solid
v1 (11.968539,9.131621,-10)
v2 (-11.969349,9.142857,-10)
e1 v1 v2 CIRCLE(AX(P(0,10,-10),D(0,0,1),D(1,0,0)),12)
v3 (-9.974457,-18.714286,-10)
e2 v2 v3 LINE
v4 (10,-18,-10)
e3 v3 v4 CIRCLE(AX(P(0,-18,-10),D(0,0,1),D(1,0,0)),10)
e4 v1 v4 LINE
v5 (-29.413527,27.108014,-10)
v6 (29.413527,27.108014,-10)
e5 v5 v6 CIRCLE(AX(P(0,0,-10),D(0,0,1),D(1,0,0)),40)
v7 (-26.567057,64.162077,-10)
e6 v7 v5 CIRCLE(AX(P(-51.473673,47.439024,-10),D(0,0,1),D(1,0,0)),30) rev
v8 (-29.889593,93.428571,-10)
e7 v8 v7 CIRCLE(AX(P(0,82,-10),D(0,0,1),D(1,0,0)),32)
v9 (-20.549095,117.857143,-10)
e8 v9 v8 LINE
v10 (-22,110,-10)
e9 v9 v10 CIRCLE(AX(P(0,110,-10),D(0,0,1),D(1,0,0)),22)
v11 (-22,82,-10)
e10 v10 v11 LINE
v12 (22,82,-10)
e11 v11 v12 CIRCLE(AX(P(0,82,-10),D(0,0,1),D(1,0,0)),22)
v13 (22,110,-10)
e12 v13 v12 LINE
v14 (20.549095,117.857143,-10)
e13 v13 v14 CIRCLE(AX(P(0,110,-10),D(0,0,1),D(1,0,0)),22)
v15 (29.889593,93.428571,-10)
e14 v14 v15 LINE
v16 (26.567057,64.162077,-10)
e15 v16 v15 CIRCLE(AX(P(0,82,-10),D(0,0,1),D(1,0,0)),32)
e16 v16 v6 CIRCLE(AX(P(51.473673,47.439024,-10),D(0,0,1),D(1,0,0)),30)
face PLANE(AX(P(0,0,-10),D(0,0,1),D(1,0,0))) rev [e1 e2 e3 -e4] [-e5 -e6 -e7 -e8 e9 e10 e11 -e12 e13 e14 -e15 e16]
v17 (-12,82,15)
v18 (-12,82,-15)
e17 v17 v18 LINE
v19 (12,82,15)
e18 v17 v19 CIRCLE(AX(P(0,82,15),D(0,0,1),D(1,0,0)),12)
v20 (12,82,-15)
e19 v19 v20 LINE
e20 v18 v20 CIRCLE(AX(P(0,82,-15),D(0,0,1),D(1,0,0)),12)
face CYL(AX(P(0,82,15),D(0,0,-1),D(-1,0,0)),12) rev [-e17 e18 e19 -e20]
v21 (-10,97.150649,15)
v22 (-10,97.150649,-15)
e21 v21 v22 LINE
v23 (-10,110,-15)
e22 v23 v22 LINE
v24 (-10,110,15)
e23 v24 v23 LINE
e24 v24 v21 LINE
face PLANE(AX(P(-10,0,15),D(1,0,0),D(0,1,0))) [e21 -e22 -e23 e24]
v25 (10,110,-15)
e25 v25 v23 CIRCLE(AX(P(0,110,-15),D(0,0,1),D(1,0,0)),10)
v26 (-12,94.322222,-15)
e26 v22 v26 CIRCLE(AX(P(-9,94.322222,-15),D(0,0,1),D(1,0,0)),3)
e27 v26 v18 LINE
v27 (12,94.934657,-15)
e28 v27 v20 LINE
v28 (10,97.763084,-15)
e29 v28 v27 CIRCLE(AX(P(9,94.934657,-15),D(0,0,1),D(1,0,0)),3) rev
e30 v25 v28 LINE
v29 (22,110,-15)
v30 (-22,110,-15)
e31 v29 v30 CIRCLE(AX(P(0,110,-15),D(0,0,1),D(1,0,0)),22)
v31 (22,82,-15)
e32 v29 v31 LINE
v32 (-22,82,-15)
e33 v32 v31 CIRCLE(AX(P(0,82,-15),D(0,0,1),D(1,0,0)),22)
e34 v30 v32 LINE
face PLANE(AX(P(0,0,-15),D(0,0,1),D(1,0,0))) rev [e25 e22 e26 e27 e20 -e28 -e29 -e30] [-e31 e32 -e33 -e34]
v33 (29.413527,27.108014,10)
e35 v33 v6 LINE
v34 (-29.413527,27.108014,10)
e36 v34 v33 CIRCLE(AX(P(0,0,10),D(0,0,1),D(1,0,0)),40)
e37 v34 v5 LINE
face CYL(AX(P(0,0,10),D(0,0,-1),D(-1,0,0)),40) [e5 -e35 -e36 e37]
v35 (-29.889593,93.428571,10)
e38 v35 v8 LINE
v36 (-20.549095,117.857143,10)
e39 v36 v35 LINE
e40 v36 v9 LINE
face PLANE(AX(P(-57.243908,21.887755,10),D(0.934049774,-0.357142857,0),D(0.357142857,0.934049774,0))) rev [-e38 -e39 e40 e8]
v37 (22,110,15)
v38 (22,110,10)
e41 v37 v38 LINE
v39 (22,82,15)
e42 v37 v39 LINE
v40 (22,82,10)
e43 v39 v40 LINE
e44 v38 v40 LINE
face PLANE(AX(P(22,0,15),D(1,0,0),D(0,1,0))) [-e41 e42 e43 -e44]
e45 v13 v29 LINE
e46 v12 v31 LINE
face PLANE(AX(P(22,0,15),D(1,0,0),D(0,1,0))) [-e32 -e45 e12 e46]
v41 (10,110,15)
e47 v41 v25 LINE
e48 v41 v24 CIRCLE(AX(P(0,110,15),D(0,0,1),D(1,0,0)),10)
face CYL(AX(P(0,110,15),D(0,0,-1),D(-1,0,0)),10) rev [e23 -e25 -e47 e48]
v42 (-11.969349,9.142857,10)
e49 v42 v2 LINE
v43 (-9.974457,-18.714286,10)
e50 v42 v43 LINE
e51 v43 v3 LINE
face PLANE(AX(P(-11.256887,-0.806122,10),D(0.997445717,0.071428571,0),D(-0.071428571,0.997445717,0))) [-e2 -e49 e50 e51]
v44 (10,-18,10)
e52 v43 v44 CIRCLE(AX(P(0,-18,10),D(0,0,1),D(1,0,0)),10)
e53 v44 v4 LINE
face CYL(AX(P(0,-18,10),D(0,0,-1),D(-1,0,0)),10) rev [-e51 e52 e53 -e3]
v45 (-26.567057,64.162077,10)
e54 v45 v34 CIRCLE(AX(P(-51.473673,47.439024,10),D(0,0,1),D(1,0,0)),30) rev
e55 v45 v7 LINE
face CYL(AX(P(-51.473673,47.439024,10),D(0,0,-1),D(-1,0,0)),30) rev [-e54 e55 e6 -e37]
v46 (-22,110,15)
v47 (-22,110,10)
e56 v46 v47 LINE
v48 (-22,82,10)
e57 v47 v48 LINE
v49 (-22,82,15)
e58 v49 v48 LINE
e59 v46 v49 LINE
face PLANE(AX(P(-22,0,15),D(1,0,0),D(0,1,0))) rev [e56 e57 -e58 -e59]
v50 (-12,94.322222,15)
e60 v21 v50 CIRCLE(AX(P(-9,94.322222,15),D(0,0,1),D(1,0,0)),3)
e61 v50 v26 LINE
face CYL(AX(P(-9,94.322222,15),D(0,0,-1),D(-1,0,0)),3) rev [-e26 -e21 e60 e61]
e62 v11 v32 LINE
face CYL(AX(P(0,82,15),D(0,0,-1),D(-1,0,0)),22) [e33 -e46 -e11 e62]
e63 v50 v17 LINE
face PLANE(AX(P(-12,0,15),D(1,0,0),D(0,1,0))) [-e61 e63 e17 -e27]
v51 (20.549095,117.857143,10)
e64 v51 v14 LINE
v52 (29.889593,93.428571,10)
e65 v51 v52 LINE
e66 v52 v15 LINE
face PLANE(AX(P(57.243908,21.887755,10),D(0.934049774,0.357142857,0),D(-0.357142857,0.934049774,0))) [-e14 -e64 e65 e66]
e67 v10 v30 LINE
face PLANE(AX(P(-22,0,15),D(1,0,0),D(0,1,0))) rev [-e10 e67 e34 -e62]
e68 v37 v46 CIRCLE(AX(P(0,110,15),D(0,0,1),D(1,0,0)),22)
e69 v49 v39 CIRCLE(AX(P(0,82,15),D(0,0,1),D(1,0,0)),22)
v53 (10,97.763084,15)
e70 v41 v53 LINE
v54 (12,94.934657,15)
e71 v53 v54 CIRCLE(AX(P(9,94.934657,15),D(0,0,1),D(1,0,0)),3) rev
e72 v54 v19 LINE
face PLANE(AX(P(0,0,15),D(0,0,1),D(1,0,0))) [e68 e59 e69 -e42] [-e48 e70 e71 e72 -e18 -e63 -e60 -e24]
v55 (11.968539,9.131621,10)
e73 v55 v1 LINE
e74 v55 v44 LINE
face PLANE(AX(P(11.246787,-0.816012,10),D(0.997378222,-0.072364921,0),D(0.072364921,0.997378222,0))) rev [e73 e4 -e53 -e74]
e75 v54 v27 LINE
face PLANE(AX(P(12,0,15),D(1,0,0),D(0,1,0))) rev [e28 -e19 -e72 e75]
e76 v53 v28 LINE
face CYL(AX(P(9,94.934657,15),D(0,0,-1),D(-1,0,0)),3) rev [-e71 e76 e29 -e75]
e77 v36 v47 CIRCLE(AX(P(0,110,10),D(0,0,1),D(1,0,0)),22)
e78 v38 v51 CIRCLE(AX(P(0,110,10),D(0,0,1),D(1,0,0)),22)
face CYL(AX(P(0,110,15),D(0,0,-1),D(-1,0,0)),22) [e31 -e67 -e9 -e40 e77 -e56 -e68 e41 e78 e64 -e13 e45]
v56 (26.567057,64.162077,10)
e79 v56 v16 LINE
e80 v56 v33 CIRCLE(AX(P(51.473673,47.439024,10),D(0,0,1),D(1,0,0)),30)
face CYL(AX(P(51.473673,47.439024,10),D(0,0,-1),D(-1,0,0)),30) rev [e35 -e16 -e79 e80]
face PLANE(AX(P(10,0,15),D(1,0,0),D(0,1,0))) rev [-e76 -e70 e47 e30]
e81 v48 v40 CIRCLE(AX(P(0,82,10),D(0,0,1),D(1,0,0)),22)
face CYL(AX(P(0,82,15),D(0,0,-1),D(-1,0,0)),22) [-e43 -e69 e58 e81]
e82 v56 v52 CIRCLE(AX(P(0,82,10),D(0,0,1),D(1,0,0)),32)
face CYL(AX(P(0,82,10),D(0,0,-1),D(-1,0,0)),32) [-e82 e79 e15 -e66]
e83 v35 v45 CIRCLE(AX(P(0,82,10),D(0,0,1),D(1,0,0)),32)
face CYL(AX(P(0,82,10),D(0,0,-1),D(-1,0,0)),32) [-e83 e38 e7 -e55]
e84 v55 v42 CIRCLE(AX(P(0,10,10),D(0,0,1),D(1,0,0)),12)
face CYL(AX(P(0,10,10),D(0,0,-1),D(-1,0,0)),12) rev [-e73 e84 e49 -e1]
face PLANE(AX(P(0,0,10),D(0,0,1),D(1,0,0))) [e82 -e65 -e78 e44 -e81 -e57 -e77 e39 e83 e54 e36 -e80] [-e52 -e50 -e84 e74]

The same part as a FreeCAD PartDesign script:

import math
import FreeCAD as App
import Part
import Sketcher

doc = App.newDocument("Part")
body = doc.addObject("PartDesign::Body", "Body")

# Sketch on XY plane
sketch1 = body.newObject("Sketcher::SketchObject", "Sketch")
sketch1.AttachmentSupport = (doc.getObject("XY_Plane"), [""])
sketch1.MapMode = "FlatFace"
sketch1.addGeometry(Part.LineSegment(App.Vector(-22, 110, 0), App.Vector(-22, 82, 0)), False)
sketch1.addGeometry(Part.ArcOfCircle(Part.Circle(App.Vector(0, 82, 0), App.Vector(0, 0, 1), 22), math.radians(180), math.radians(360)), False)
sketch1.addGeometry(Part.LineSegment(App.Vector(22, 82, 0), App.Vector(22, 110, 0)), False)
sketch1.addGeometry(Part.ArcOfCircle(Part.Circle(App.Vector(0, 110, 0), App.Vector(0, 0, 1), 22), math.radians(0), math.radians(180)), False)
sketch1.addGeometry(Part.ArcOfCircle(Part.Circle(App.Vector(0, 110, 0), App.Vector(0, 0, 1), 10), math.radians(0), math.radians(180)), False)
sketch1.addGeometry(Part.LineSegment(App.Vector(10, 110, 0), App.Vector(10, 97.8, 0)), False)
sketch1.addGeometry(Part.ArcOfCircle(Part.Circle(App.Vector(9, 94.9, 0), App.Vector(0, 0, 1), 3), math.radians(0), math.radians(71)), False)
sketch1.addGeometry(Part.LineSegment(App.Vector(12, 94.9, 0), App.Vector(12, 82, 0)), False)
sketch1.addGeometry(Part.ArcOfCircle(Part.Circle(App.Vector(0, 82, 0), App.Vector(0, 0, 1), 12), math.radians(180), math.radians(360)), False)
sketch1.addGeometry(Part.LineSegment(App.Vector(-12, 82, 0), App.Vector(-12, 94.3, 0)), False)
sketch1.addGeometry(Part.ArcOfCircle(Part.Circle(App.Vector(-9, 94.3, 0), App.Vector(0, 0, 1), 3), math.radians(109), math.radians(180)), False)
sketch1.addGeometry(Part.LineSegment(App.Vector(-10, 97.2, 0), App.Vector(-10, 110, 0)), False)
sketch1.addConstraint(Sketcher.Constraint("Tangent", 0, 2, 1, 1))
sketch1.addConstraint(Sketcher.Constraint("Tangent", 1, 2, 2, 1))
sketch1.addConstraint(Sketcher.Constraint("Tangent", 2, 2, 3, 1))
sketch1.addConstraint(Sketcher.Constraint("Tangent", 3, 2, 0, 1))
sketch1.addConstraint(Sketcher.Constraint("Tangent", 4, 1, 5, 1))
sketch1.addConstraint(Sketcher.Constraint("Coincident", 5, 2, 6, 2))
sketch1.addConstraint(Sketcher.Constraint("Tangent", 6, 1, 7, 1))
sketch1.addConstraint(Sketcher.Constraint("Tangent", 7, 2, 8, 2))
sketch1.addConstraint(Sketcher.Constraint("Tangent", 8, 1, 9, 1))
sketch1.addConstraint(Sketcher.Constraint("Tangent", 9, 2, 10, 2))
sketch1.addConstraint(Sketcher.Constraint("Coincident", 10, 1, 11, 1))
sketch1.addConstraint(Sketcher.Constraint("Tangent", 11, 2, 4, 2))
sketch1.addConstraint(Sketcher.Constraint("Vertical", 0))
sketch1.addConstraint(Sketcher.Constraint("Vertical", 2))
sketch1.addConstraint(Sketcher.Constraint("Vertical", 5))
sketch1.addConstraint(Sketcher.Constraint("Vertical", 7))
sketch1.addConstraint(Sketcher.Constraint("Vertical", 9))
sketch1.addConstraint(Sketcher.Constraint("Vertical", 11))
sketch1.addConstraint(Sketcher.Constraint("Coincident", 4, 3, 3, 3))
sketch1.addConstraint(Sketcher.Constraint("Coincident", 8, 3, 1, 3))
sketch1.addConstraint(Sketcher.Constraint("Equal", 6, 10))
sketch1.addConstraint(Sketcher.Constraint("PointOnObject", 1, 3, -2))
sketch1.addConstraint(Sketcher.Constraint("Radius", 1, 22.0))
sketch1.addConstraint(Sketcher.Constraint("Radius", 4, 10.0))
sketch1.addConstraint(Sketcher.Constraint("Radius", 6, 3.0))
sketch1.addConstraint(Sketcher.Constraint("Radius", 8, 12.0))
sketch1.addConstraint(Sketcher.Constraint("DistanceY", 0, 2, 0, 1, 28.0))
sketch1.addConstraint(Sketcher.Constraint("DistanceY", -1, 1, 1, 3, 82.0))
sketch1.addConstraint(Sketcher.Constraint("DistanceY", 9, 1, 9, 2, 12.322222))
sketch1.addConstraint(Sketcher.Constraint("DistanceY", 5, 2, 5, 1, 12.236916))
pad1 = body.newObject("PartDesign::Pad", "Pad")
pad1.Profile = sketch1
pad1.Length = 30
pad1.Midplane = True

# Sketch on XY plane
sketch2 = body.newObject("Sketcher::SketchObject", "Sketch001")
sketch2.AttachmentSupport = (doc.getObject("XY_Plane"), [""])
sketch2.MapMode = "FlatFace"
sketch2.addGeometry(Part.ArcOfCircle(Part.Circle(App.Vector(0, 110, 0), App.Vector(0, 0, 1), 22), math.radians(0), math.radians(21)), False)
sketch2.addGeometry(Part.LineSegment(App.Vector(22, 110, 0), App.Vector(22, 82, 0)), False)
sketch2.addGeometry(Part.ArcOfCircle(Part.Circle(App.Vector(0, 82, 0), App.Vector(0, 0, 1), 22), math.radians(180), math.radians(360)), False)
sketch2.addGeometry(Part.LineSegment(App.Vector(-22, 82, 0), App.Vector(-22, 110, 0)), False)
sketch2.addGeometry(Part.ArcOfCircle(Part.Circle(App.Vector(0, 110, 0), App.Vector(0, 0, 1), 22), math.radians(159), math.radians(180)), False)
sketch2.addGeometry(Part.LineSegment(App.Vector(-21, 118, 0), App.Vector(-30, 93, 0)), False)
sketch2.addGeometry(Part.ArcOfCircle(Part.Circle(App.Vector(0, 82, 0), App.Vector(0, 0, 1), 32), math.radians(159), math.radians(214)), False)
sketch2.addGeometry(Part.ArcOfCircle(Part.Circle(App.Vector(-51, 47, 0), App.Vector(0, 0, 1), 30), math.radians(-43), math.radians(34)), False)
sketch2.addGeometry(Part.ArcOfCircle(Part.Circle(App.Vector(0, 0, 0), App.Vector(0, 0, 1), 40), math.radians(137), math.radians(403)), False)
sketch2.addGeometry(Part.ArcOfCircle(Part.Circle(App.Vector(51, 47, 0), App.Vector(0, 0, 1), 30), math.radians(146), math.radians(223)), False)
sketch2.addGeometry(Part.ArcOfCircle(Part.Circle(App.Vector(0, 82, 0), App.Vector(0, 0, 1), 32), math.radians(-34), math.radians(21)), False)
sketch2.addGeometry(Part.LineSegment(App.Vector(30, 93, 0), App.Vector(21, 118, 0)), False)
sketch2.addGeometry(Part.ArcOfCircle(Part.Circle(App.Vector(0, 10, 0), App.Vector(0, 0, 1), 12), math.radians(-4), math.radians(184)), False)
sketch2.addGeometry(Part.LineSegment(App.Vector(12, 9, 0), App.Vector(10, -18, 0)), False)
sketch2.addGeometry(Part.ArcOfCircle(Part.Circle(App.Vector(0, -18, 0), App.Vector(0, 0, 1), 10), math.radians(-176), math.radians(0)), False)
sketch2.addGeometry(Part.LineSegment(App.Vector(-10, -19, 0), App.Vector(-12, 9, 0)), False)
sketch2.addConstraint(Sketcher.Constraint("Tangent", 0, 1, 1, 1))
sketch2.addConstraint(Sketcher.Constraint("Tangent", 1, 2, 2, 2))
sketch2.addConstraint(Sketcher.Constraint("Tangent", 2, 1, 3, 1))
sketch2.addConstraint(Sketcher.Constraint("Tangent", 3, 2, 4, 2))
sketch2.addConstraint(Sketcher.Constraint("Tangent", 4, 1, 5, 1))
sketch2.addConstraint(Sketcher.Constraint("Tangent", 5, 2, 6, 1))
sketch2.addConstraint(Sketcher.Constraint("Tangent", 6, 2, 7, 2))
sketch2.addConstraint(Sketcher.Constraint("Tangent", 7, 1, 8, 1))
sketch2.addConstraint(Sketcher.Constraint("Tangent", 8, 2, 9, 2))
sketch2.addConstraint(Sketcher.Constraint("Tangent", 9, 1, 10, 1))
sketch2.addConstraint(Sketcher.Constraint("Tangent", 10, 2, 11, 1))
sketch2.addConstraint(Sketcher.Constraint("Tangent", 11, 2, 0, 2))
sketch2.addConstraint(Sketcher.Constraint("Tangent", 12, 1, 13, 1))
sketch2.addConstraint(Sketcher.Constraint("Coincident", 13, 2, 14, 2))
sketch2.addConstraint(Sketcher.Constraint("Tangent", 14, 1, 15, 1))
sketch2.addConstraint(Sketcher.Constraint("Tangent", 15, 2, 12, 2))
sketch2.addConstraint(Sketcher.Constraint("Vertical", 1))
sketch2.addConstraint(Sketcher.Constraint("Vertical", 3))
sketch2.addConstraint(Sketcher.Constraint("Coincident", 8, 3, -1, 1))
sketch2.addConstraint(Sketcher.Constraint("Coincident", 4, 3, 0, 3))
sketch2.addConstraint(Sketcher.Constraint("Coincident", 6, 3, 2, 3))
sketch2.addConstraint(Sketcher.Constraint("Coincident", 10, 3, 2, 3))
sketch2.addConstraint(Sketcher.Constraint("Equal", 0, 2))
sketch2.addConstraint(Sketcher.Constraint("Equal", 7, 9))
sketch2.addConstraint(Sketcher.Constraint("Equal", 6, 10))
sketch2.addConstraint(Sketcher.Constraint("PointOnObject", 0, 3, -2))
sketch2.addConstraint(Sketcher.Constraint("PointOnObject", 12, 3, -2))
sketch2.addConstraint(Sketcher.Constraint("PointOnObject", 14, 3, -2))
sketch2.addConstraint(Sketcher.Constraint("Horizontal", 14, 3, 13, 2))
sketch2.addConstraint(Sketcher.Constraint("Radius", 0, 22.0))
sketch2.addConstraint(Sketcher.Constraint("Radius", 6, 32.0))
sketch2.addConstraint(Sketcher.Constraint("Radius", 7, 30.0))
sketch2.addConstraint(Sketcher.Constraint("Radius", 8, 40.0))
sketch2.addConstraint(Sketcher.Constraint("Radius", 12, 12.0))
sketch2.addConstraint(Sketcher.Constraint("Radius", 14, 10.0))
sketch2.addConstraint(Sketcher.Constraint("DistanceY", 1, 2, 1, 1, 28.0))
sketch2.addConstraint(Sketcher.Constraint("DistanceY", -1, 1, 0, 3, 110.0))
sketch2.addConstraint(Sketcher.Constraint("DistanceY", -1, 1, 12, 3, 10.0))
sketch2.addConstraint(Sketcher.Constraint("DistanceY", 14, 3, -1, 1, 18.0))
pad2 = body.newObject("PartDesign::Pad", "Pad001")
pad2.Profile = sketch2
pad2.Length = 20
pad2.Midplane = True

doc.recompute()
